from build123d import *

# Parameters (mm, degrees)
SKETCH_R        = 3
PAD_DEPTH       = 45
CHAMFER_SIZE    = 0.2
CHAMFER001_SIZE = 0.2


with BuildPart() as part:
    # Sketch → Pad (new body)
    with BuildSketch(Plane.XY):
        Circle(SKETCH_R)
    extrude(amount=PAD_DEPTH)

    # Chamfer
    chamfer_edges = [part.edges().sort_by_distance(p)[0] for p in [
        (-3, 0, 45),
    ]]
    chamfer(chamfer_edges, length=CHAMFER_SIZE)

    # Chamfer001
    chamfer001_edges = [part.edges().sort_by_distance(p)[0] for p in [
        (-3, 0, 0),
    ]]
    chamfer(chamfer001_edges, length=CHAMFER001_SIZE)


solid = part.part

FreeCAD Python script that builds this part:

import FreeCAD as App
import Part
import Sketcher


def edges_at(feature, points):
    """Names of the edges that pass closest to the given points."""
    edges = feature.Shape.Edges
    near = lambda p: min(range(len(edges)), key=lambda i: edges[i].distToShape(Part.Vertex(*p))[0])
    return sorted({f"Edge{near(p) + 1}" for p in points})

doc = App.newDocument("Part")
params = doc.addObject("Spreadsheet::Sheet", "Params")
for row, (alias, value) in enumerate([
    ("sketch1_diameter", "6 mm"),
    ("pad1_length", "45 mm"),
    ("chamfer_size", "0.2 mm"),
    ("chamfer2_size", "0.2 mm"),
], start=1):
    params.set(f"A{row}", alias)
    params.set(f"B{row}", "=" + value)
    params.setAlias(f"B{row}", alias)

body = doc.addObject("PartDesign::Body", "Body")

# Sketch on XY plane
sketch1 = body.newObject("Sketcher::SketchObject", "Sketch")
sketch1.AttachmentSupport = (doc.getObject("XY_Plane"), [""])
sketch1.MapMode = "FlatFace"
sketch1.addGeometry(Part.Circle(App.Vector(0, 0, 0), App.Vector(0, 0, 1), 3), False)
sketch1.addConstraint([
    Sketcher.Constraint("Coincident", 0, 3, -1, 1),
    Sketcher.Constraint("Diameter", 0, 6.0),
])
sketch1.setExpression("Constraints[1]", "Params.sketch1_diameter")
pad1 = body.newObject("PartDesign::Pad", "Pad")
pad1.Profile = sketch1
pad1.setExpression("Length", "Params.pad1_length")
doc.recompute()

chamfer = body.newObject("PartDesign::Chamfer", "Chamfer")
chamfer.Base = (pad1, edges_at(pad1, [(-3, 0, 45)]))
chamfer.setExpression("Size", "Params.chamfer_size")
doc.recompute()

chamfer2 = body.newObject("PartDesign::Chamfer", "Chamfer001")
chamfer2.Base = (chamfer, edges_at(chamfer, [(-3, 0, 0)]))
chamfer2.setExpression("Size", "Params.chamfer2_size")

doc.recompute()
